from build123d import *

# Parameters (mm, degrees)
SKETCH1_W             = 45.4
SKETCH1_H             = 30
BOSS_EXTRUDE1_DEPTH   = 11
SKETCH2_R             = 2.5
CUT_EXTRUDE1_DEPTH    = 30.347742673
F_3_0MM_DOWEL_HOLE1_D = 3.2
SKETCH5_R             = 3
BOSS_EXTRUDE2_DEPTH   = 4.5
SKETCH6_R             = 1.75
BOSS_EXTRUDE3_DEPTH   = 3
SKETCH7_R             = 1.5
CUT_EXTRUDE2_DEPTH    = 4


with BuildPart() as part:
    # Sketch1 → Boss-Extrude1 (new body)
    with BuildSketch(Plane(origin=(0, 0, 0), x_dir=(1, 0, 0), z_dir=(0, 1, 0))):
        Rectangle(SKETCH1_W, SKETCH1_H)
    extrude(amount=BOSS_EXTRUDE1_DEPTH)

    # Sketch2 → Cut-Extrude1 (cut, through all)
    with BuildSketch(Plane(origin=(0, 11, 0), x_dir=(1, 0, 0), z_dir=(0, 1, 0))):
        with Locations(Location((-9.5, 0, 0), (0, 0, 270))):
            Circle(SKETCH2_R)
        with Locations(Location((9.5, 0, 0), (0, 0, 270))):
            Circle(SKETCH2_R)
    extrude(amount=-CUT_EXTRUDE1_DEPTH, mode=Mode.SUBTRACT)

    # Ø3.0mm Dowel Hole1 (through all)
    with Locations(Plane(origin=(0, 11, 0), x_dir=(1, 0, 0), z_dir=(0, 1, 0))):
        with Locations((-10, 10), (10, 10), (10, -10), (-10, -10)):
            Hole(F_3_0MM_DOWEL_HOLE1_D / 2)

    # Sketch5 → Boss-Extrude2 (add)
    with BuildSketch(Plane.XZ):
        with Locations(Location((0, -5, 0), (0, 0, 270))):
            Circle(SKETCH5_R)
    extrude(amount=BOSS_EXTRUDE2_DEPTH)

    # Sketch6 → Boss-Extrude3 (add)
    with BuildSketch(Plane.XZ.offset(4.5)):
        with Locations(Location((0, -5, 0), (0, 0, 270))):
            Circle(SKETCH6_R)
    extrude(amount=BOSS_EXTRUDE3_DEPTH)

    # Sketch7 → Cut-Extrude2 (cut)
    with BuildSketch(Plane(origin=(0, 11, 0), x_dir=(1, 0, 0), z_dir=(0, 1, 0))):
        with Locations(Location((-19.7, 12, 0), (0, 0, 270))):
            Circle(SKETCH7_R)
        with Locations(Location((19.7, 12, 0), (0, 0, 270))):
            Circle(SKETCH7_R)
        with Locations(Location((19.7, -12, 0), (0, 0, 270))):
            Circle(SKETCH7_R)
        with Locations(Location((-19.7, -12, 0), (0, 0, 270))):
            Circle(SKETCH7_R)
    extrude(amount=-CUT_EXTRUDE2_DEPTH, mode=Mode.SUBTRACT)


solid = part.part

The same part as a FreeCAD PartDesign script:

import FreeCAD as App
import Part
import Sketcher

V = App.Vector


def add_polygon(sketch, points):
    """Adds a closed chain of lines whose ends are joined by coincident constraints."""
    first, n = sketch.GeometryCount, len(points)
    for a, b in zip(points, points[1:] + points[:1]):
        sketch.addGeometry(Part.LineSegment(App.Vector(*a, 0), App.Vector(*b, 0)), False)
    for i in range(n):
        sketch.addConstraint(Sketcher.Constraint("Coincident", first + i, 2, first + (i + 1) % n, 1))

doc = App.newDocument("Part")
body = doc.addObject("PartDesign::Body", "Body")

# Sketch on XZ plane
sketch1 = body.newObject("Sketcher::SketchObject", "Sketch")
sketch1.AttachmentSupport = (doc.getObject("XZ_Plane"), [""])
sketch1.MapMode = "FlatFace"
add_polygon(sketch1, [(-23, -15), (-23, 15), (23, 15), (23, -15)])  # lines 0-3
sketch1.addConstraint([
    Sketcher.Constraint("Vertical", 0),
    Sketcher.Constraint("Horizontal", 1),
    Sketcher.Constraint("Vertical", 2),
    Sketcher.Constraint("Horizontal", 3),
    Sketcher.Constraint("Symmetric", 0, 2, 2, 2, -1, 1),
    Sketcher.Constraint("DistanceY", 0, 1, 0, 2, 30.0),
    Sketcher.Constraint("DistanceX", 1, 1, 1, 2, 45.4),
])
pad1 = body.newObject("PartDesign::Pad", "Pad")
pad1.Profile = sketch1
pad1.Length = 11
pad1.Reversed = True

# Sketch on XZ plane
sketch2 = body.newObject("Sketcher::SketchObject", "Sketch001")
sketch2.AttachmentSupport = (doc.getObject("XZ_Plane"), [""])
sketch2.MapMode = "FlatFace"
sketch2.AttachmentOffset = App.Placement(V(0, 0, -11), App.Rotation())
sketch2.addGeometry([
    Part.Circle(V(-9.5, 0, 0), V(0, 0, 1), 2.5),
    Part.Circle(V(9.5, 0, 0), V(0, 0, 1), 2.5),
], False)
sketch2.addConstraint([
    Sketcher.Constraint("Equal", 0, 1),
    Sketcher.Constraint("Symmetric", 0, 3, 1, 3, -1, 1),
    Sketcher.Constraint("PointOnObject", 0, 3, -1),
    Sketcher.Constraint("Diameter", 0, 5.0),
    Sketcher.Constraint("DistanceX", 0, 3, 1, 3, 19.0),
])
pocket1 = body.newObject("PartDesign::Pocket", "Pocket")
pocket1.Profile = sketch2
pocket1.Type = "ThroughAll"
pocket1.Reversed = True

# Sketch on XZ plane
sketch3 = body.newObject("Sketcher::SketchObject", "Sketch002")
sketch3.AttachmentSupport = (doc.getObject("XZ_Plane"), [""])
sketch3.MapMode = "FlatFace"
sketch3.AttachmentOffset = App.Placement(V(0, 0, -11), App.Rotation())
sketch3.addGeometry([
    Part.Circle(V(-10, -10, 0), V(0, 0, 1), 1.6),
    Part.Circle(V(10, -10, 0), V(0, 0, 1), 1.6),
    Part.Circle(V(10, 10, 0), V(0, 0, 1), 1.6),
    Part.Circle(V(-10, 10, 0), V(0, 0, 1), 1.6),
], False)
sketch3.addConstraint([
    Sketcher.Constraint("Equal", 0, 1),
    Sketcher.Constraint("Equal", 1, 2),
    Sketcher.Constraint("Equal", 2, 3),
    Sketcher.Constraint("Symmetric", 0, 3, 2, 3, -1, 1),
    Sketcher.Constraint("Symmetric", 1, 3, 3, 3, -1, 1),
    Sketcher.Constraint("Symmetric", 0, 3, 1, 3, -2),
    Sketcher.Constraint("Diameter", 0, 3.2),
    Sketcher.Constraint("DistanceX", 0, 3, -1, 1, 10.0),
    Sketcher.Constraint("DistanceY", 0, 3, -1, 1, 10.0),
])
doc.recompute()
hole = body.newObject("PartDesign::Hole", "Hole")
hole.Profile = sketch3
hole.ThreadType = "None"
hole.Diameter = 3.2
hole.DepthType = "ThroughAll"
hole.Reversed = True

# Sketch on XZ plane
sketch4 = body.newObject("Sketcher::SketchObject", "Sketch003")
sketch4.AttachmentSupport = (doc.getObject("XZ_Plane"), [""])
sketch4.MapMode = "FlatFace"
sketch4.addGeometry(Part.Circle(V(0, -5, 0), V(0, 0, 1), 3), False)
sketch4.addConstraint([
    Sketcher.Constraint("PointOnObject", 0, 3, -2),
    Sketcher.Constraint("Diameter", 0, 6.0),
    Sketcher.Constraint("DistanceY", 0, 3, -1, 1, 5.0),
])
pad2 = body.newObject("PartDesign::Pad", "Pad001")
pad2.Profile = sketch4
pad2.Length = 4.5

# Sketch on XZ plane
sketch5 = body.newObject("Sketcher::SketchObject", "Sketch004")
sketch5.AttachmentSupport = (doc.getObject("XZ_Plane"), [""])
sketch5.MapMode = "FlatFace"
sketch5.AttachmentOffset = App.Placement(V(0, 0, 4.5), App.Rotation())
sketch5.addGeometry(Part.Circle(V(0, -5, 0), V(0, 0, 1), 1.8), False)
sketch5.addConstraint([
    Sketcher.Constraint("PointOnObject", 0, 3, -2),
    Sketcher.Constraint("Diameter", 0, 3.5),
    Sketcher.Constraint("DistanceY", 0, 3, -1, 1, 5.0),
])
pad3 = body.newObject("PartDesign::Pad", "Pad002")
pad3.Profile = sketch5
pad3.Length = 3

# Sketch on XZ plane
sketch6 = body.newObject("Sketcher::SketchObject", "Sketch005")
sketch6.AttachmentSupport = (doc.getObject("XZ_Plane"), [""])
sketch6.MapMode = "FlatFace"
sketch6.AttachmentOffset = App.Placement(V(0, 0, -11), App.Rotation())
sketch6.addGeometry([
    Part.Circle(V(-19.7, -12, 0), V(0, 0, 1), 1.5),
    Part.Circle(V(19.7, -12, 0), V(0, 0, 1), 1.5),
    Part.Circle(V(19.7, 12, 0), V(0, 0, 1), 1.5),
    Part.Circle(V(-19.7, 12, 0), V(0, 0, 1), 1.5),
], False)
sketch6.addConstraint([
    Sketcher.Constraint("Equal", 0, 1),
    Sketcher.Constraint("Equal", 1, 2),
    Sketcher.Constraint("Equal", 2, 3),
    Sketcher.Constraint("Symmetric", 0, 3, 2, 3, -1, 1),
    Sketcher.Constraint("Symmetric", 1, 3, 3, 3, -1, 1),
    Sketcher.Constraint("Symmetric", 0, 3, 1, 3, -2),
    Sketcher.Constraint("Diameter", 0, 3.0),
    Sketcher.Constraint("DistanceY", 0, 3, -1, 1, 12.0),
    Sketcher.Constraint("DistanceX", 0, 3, -1, 1, 19.7),
])
pocket2 = body.newObject("PartDesign::Pocket", "Pocket001")
pocket2.Profile = sketch6
pocket2.Length = 4
pocket2.Reversed = True

doc.recompute()
